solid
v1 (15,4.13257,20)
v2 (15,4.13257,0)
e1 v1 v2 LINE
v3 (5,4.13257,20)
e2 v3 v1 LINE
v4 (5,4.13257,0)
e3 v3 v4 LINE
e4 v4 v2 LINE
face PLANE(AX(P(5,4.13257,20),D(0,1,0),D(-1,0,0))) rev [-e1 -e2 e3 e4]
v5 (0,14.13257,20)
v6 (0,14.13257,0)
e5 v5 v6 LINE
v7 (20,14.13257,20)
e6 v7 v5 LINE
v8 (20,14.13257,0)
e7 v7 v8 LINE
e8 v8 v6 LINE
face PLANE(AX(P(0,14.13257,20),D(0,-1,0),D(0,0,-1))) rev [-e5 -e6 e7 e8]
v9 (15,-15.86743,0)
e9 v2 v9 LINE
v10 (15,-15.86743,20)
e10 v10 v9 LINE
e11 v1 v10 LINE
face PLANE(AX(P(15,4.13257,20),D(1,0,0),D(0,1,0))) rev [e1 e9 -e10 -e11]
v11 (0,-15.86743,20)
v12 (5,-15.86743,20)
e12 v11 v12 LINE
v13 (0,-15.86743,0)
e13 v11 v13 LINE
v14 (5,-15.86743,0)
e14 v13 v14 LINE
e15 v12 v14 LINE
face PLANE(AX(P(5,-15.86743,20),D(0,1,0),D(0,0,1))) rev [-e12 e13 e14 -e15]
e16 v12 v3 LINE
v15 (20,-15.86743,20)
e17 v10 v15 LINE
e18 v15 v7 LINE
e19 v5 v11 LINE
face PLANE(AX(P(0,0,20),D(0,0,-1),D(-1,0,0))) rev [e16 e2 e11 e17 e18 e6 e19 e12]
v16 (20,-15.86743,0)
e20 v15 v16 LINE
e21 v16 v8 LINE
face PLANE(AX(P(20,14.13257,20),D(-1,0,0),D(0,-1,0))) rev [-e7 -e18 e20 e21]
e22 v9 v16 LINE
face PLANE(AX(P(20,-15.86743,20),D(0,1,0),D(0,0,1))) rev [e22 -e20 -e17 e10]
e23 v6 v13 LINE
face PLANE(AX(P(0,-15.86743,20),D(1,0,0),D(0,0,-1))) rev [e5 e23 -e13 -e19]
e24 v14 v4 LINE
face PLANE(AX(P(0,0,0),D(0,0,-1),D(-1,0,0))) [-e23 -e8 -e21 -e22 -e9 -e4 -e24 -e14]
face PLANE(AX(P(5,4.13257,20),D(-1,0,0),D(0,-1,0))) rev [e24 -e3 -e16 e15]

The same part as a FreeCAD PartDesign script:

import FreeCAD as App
import Part
import Sketcher

V = App.Vector


def add_polygon(sketch, points):
    """Adds a closed chain of lines whose ends are joined by coincident constraints."""
    first, n = sketch.GeometryCount, len(points)
    for a, b in zip(points, points[1:] + points[:1]):
        sketch.addGeometry(Part.LineSegment(App.Vector(*a, 0), App.Vector(*b, 0)), False)
    for i in range(n):
        sketch.addConstraint(Sketcher.Constraint("Coincident", first + i, 2, first + (i + 1) % n, 1))

doc = App.newDocument("Part")
body = doc.addObject("PartDesign::Body", "Body")

# Sketch on XY plane
sketch1 = body.newObject("Sketcher::SketchObject", "Sketch")
sketch1.AttachmentSupport = (doc.getObject("XY_Plane"), [""])
sketch1.MapMode = "FlatFace"
add_polygon(sketch1, [(20, 14), (0, 14), (0, -16), (5, -16), (5, 4), (15, 4), (15, -16), (20, -16)])  # lines 0-7
sketch1.addConstraint(Sketcher.Constraint("Horizontal", 0))
sketch1.addConstraint(Sketcher.Constraint("Vertical", 1))
sketch1.addConstraint(Sketcher.Constraint("Horizontal", 2))
sketch1.addConstraint(Sketcher.Constraint("Vertical", 3))
sketch1.addConstraint(Sketcher.Constraint("Horizontal", 4))
sketch1.addConstraint(Sketcher.Constraint("Vertical", 5))
sketch1.addConstraint(Sketcher.Constraint("Horizontal", 6))
sketch1.addConstraint(Sketcher.Constraint("Vertical", 7))
sketch1.addConstraint(Sketcher.Constraint("PointOnObject", 0, 2, -2))
sketch1.addConstraint(Sketcher.Constraint("Horizontal", 2, 2, 5, 2))
sketch1.addConstraint(Sketcher.Constraint("Equal", 2, 6))
sketch1.addConstraint(Sketcher.Constraint("Equal", 0, 3))
sketch1.addConstraint(Sketcher.Constraint("DistanceX", 0, 2, 0, 1, 20.0))
sketch1.addConstraint(Sketcher.Constraint("DistanceX", 2, 1, 2, 2, 5.0))
sketch1.addConstraint(Sketcher.Constraint("DistanceY", 1, 2, 1, 1, 30.0))
sketch1.addConstraint(Sketcher.Constraint("DistanceY", -1, 1, 0, 2, 14.13257))
pad1 = body.newObject("PartDesign::Pad", "Pad")
pad1.Profile = sketch1
pad1.Length = 20

doc.recompute()
